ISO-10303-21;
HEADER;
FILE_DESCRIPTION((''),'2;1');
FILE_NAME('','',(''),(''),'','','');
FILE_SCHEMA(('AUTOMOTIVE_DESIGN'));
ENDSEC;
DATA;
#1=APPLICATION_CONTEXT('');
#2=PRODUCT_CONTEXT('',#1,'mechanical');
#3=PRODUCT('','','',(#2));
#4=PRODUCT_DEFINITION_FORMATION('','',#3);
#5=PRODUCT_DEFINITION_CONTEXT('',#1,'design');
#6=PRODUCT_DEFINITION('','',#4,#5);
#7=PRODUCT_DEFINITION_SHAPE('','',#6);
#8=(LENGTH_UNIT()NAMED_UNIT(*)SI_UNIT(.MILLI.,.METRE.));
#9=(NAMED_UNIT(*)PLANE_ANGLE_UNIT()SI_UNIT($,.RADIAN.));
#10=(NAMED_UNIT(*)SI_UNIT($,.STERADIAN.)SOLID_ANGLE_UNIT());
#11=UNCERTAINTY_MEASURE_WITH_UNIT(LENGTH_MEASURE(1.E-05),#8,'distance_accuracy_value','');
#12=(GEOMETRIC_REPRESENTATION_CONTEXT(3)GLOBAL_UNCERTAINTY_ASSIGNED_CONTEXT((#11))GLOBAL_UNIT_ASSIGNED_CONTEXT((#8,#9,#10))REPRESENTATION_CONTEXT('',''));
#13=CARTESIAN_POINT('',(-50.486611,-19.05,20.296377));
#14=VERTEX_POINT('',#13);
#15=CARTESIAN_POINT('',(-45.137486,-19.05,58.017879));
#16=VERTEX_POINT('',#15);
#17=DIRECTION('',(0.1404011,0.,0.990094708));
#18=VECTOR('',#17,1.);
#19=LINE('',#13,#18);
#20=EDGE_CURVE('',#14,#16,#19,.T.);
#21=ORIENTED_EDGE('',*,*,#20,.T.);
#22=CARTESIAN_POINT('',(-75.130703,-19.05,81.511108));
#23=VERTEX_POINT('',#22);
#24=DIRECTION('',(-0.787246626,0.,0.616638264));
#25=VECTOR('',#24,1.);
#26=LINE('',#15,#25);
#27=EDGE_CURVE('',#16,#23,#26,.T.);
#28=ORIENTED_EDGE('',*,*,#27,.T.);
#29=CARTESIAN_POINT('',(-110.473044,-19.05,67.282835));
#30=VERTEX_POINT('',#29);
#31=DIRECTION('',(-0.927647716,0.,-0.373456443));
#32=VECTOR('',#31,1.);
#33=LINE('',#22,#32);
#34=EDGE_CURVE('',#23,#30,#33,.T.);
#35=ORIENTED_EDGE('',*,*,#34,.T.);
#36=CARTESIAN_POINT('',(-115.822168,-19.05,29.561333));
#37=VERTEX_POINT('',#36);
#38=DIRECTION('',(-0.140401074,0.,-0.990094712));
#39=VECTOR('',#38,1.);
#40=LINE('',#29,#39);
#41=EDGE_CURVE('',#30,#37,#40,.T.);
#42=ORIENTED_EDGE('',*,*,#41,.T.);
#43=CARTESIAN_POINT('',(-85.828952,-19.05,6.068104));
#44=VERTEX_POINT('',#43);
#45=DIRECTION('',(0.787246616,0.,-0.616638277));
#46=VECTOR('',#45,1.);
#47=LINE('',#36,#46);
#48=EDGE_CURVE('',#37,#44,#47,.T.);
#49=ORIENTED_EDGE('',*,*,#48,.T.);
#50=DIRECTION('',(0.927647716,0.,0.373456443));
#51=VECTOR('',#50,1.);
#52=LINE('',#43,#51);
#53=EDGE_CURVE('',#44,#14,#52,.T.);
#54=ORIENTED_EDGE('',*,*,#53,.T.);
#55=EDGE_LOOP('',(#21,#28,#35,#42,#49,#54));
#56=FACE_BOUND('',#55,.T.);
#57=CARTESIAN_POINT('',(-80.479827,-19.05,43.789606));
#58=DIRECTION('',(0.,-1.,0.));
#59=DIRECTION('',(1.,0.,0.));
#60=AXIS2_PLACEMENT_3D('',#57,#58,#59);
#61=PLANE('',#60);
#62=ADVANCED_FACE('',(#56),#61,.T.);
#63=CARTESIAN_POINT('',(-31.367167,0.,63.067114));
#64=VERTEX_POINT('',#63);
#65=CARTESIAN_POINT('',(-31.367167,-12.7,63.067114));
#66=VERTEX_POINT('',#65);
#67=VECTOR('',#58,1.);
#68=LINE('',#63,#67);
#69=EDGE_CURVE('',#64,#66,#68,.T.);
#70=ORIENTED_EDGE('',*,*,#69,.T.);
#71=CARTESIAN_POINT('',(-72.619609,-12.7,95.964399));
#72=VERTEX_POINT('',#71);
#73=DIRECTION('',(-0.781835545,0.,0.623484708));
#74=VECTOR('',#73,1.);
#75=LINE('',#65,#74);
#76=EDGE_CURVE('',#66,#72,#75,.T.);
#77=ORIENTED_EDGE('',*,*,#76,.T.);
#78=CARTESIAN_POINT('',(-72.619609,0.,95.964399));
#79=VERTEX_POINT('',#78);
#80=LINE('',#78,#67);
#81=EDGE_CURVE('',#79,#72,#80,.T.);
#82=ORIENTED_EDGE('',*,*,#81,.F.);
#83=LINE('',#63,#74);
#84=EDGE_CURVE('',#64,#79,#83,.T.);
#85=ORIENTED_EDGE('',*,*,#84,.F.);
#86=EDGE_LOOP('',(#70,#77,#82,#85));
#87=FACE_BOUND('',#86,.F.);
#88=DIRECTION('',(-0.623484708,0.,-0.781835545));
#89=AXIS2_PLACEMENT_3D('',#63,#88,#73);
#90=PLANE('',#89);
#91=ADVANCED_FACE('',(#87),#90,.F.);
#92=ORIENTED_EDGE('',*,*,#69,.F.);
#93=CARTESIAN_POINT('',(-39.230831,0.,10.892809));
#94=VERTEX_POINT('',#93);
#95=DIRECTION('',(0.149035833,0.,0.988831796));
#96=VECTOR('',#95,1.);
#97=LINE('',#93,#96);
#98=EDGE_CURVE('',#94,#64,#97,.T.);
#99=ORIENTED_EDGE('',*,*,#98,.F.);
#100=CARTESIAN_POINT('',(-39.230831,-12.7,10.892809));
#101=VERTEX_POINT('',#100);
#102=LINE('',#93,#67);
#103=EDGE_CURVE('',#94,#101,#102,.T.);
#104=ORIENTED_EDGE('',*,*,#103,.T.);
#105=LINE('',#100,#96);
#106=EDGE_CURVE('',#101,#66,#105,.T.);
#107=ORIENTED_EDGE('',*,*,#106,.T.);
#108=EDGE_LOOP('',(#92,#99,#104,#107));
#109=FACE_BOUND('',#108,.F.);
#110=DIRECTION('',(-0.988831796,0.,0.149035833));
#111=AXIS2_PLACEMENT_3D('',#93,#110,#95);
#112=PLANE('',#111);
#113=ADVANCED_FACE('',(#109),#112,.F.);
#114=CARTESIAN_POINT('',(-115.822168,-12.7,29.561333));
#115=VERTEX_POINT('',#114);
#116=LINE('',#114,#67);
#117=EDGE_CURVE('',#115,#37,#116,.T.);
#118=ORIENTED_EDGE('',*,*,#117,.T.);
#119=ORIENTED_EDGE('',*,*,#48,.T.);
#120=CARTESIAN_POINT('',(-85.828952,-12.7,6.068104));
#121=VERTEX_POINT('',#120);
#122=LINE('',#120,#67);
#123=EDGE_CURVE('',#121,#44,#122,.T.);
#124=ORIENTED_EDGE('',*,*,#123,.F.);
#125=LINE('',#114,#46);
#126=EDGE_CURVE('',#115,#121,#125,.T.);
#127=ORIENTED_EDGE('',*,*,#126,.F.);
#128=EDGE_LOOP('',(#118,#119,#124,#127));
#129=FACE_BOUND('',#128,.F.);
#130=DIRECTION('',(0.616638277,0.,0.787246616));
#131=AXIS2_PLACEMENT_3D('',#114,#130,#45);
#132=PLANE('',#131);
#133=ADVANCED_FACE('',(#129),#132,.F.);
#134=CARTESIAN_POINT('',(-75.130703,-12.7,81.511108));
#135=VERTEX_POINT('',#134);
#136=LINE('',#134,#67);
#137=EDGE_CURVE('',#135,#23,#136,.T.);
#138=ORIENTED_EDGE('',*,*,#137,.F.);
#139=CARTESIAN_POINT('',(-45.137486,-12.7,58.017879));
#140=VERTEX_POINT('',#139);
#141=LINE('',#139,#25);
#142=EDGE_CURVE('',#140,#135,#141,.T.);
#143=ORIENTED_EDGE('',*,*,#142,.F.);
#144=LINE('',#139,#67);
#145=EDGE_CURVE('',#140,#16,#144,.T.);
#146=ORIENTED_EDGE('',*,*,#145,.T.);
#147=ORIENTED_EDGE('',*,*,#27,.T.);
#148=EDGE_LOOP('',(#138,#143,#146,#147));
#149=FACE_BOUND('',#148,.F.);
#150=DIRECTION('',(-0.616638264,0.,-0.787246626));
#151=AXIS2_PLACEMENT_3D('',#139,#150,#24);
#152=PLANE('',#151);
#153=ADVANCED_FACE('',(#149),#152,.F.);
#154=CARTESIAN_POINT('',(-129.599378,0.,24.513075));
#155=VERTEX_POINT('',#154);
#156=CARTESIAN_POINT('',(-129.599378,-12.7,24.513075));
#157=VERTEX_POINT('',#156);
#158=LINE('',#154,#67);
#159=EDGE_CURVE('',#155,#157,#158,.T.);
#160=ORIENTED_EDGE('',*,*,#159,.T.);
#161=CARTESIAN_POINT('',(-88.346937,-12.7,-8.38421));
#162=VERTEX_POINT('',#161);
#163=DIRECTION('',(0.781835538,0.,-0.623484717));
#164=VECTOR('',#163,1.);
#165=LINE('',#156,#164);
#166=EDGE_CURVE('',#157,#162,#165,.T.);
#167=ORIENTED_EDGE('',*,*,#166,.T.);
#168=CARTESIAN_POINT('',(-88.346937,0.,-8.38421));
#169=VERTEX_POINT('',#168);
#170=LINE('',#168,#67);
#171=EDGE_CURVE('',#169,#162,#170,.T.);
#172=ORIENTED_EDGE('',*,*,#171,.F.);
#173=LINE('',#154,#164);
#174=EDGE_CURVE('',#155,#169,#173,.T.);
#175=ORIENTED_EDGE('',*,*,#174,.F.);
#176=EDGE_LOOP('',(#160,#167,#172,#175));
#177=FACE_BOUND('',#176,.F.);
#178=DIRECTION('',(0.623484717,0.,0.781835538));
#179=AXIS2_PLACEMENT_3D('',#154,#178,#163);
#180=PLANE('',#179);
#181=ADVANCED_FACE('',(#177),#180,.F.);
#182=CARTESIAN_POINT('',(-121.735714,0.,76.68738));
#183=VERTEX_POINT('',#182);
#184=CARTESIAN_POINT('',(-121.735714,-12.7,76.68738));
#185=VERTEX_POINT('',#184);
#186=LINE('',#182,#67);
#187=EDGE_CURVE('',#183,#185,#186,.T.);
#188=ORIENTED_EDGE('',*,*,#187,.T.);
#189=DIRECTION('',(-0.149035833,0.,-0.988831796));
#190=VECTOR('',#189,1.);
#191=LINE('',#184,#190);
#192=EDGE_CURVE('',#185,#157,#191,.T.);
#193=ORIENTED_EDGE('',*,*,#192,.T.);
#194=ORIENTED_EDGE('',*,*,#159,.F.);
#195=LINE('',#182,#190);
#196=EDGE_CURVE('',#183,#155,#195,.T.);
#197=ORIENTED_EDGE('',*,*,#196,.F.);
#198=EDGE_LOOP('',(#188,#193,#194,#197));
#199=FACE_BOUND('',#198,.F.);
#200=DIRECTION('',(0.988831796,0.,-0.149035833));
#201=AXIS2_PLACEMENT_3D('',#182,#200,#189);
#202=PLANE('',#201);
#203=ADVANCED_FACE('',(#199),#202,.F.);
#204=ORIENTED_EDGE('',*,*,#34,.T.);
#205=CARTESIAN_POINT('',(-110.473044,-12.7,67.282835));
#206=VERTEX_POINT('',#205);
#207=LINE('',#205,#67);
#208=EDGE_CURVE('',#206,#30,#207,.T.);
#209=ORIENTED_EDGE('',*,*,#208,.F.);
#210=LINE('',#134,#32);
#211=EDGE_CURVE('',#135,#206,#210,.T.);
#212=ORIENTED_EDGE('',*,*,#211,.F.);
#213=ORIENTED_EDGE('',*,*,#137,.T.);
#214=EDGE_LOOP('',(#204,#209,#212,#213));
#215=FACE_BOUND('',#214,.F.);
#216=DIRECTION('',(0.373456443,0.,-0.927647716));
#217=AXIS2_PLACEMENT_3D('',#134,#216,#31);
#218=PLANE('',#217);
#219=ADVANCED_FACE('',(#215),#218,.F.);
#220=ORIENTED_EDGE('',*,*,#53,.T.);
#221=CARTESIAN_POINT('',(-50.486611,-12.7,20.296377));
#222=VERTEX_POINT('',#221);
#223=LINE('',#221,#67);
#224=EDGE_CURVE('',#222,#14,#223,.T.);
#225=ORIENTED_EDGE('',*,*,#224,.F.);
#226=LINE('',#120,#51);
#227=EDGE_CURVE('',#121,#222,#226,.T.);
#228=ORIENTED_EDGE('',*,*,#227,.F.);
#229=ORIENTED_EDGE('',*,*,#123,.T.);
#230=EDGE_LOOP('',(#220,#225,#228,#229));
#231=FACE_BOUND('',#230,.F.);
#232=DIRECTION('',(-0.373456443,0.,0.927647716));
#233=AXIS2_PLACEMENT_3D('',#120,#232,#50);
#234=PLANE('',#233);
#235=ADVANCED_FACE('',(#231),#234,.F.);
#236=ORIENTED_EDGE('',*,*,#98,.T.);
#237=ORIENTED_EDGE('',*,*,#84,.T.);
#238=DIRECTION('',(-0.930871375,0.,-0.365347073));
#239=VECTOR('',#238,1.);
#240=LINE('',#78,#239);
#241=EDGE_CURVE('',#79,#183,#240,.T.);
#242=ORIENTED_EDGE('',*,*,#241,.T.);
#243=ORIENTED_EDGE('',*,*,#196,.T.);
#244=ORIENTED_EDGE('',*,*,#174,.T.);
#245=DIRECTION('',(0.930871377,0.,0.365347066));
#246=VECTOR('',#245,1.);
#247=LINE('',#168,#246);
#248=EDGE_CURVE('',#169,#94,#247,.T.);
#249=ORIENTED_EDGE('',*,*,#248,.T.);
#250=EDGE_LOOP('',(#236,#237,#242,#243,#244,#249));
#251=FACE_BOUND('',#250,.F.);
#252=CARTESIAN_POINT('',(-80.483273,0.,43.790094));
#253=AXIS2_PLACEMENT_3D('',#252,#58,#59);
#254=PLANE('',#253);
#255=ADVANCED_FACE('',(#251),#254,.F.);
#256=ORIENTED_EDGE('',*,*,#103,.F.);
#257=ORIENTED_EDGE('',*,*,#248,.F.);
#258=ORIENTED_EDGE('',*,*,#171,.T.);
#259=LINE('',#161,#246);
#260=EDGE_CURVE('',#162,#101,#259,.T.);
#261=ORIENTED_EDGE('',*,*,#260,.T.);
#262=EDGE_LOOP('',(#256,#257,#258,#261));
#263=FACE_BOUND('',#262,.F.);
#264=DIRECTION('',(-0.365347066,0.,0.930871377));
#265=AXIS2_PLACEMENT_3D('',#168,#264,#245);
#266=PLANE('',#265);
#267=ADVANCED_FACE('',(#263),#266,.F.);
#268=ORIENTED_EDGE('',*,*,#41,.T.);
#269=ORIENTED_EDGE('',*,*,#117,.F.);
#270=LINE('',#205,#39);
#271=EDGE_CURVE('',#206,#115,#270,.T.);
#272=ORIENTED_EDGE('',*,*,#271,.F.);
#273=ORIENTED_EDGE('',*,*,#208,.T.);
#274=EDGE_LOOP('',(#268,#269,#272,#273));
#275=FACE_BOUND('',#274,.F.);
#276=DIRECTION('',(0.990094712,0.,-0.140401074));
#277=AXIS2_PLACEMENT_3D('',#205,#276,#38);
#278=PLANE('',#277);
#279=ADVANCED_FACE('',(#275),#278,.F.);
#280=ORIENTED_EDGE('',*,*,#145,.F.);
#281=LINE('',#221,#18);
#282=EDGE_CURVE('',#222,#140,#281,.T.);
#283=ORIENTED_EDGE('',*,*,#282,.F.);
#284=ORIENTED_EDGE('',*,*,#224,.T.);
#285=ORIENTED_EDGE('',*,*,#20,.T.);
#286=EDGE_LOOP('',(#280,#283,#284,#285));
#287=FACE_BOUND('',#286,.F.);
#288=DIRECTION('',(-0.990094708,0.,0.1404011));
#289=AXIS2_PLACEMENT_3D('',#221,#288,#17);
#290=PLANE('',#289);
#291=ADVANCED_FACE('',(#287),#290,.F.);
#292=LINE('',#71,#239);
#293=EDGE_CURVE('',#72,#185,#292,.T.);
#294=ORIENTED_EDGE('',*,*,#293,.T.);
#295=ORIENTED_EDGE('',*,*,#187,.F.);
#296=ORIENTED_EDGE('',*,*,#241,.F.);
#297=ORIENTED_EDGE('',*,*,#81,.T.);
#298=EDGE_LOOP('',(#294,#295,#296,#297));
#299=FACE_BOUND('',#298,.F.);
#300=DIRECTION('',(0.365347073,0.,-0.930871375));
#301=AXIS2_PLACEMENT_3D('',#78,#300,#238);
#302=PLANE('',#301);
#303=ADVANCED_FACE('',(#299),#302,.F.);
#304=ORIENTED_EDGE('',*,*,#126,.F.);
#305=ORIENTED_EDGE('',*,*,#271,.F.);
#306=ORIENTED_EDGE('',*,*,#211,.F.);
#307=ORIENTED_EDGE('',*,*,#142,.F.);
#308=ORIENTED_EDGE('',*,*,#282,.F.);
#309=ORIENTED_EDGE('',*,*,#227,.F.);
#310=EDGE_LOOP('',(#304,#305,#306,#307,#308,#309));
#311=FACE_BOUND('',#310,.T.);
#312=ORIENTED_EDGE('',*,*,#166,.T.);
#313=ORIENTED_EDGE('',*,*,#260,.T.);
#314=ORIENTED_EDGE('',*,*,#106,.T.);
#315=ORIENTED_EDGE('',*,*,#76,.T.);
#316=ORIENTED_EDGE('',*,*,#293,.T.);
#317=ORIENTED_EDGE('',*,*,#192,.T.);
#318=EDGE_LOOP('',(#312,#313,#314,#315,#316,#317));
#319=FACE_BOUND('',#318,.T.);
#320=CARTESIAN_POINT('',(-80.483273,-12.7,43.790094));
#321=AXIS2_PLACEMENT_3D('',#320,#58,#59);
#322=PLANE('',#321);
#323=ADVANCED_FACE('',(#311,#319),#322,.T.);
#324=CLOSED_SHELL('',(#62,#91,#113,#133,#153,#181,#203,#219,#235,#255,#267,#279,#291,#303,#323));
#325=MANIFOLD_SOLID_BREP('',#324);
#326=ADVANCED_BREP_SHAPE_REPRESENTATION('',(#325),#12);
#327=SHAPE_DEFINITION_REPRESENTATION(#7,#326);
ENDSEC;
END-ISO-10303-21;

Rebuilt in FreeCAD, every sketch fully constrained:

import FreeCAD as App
import Part
import Sketcher

V = App.Vector
Q = App.Units.Quantity

doc = App.newDocument("Part")
body = doc.addObject("PartDesign::Body", "Body")

# Sketch on XZ plane
sketch1 = body.newObject("Sketcher::SketchObject", "Sketch")
sketch1.AttachmentSupport = (doc.getObject("XZ_Plane"), [""])
sketch1.MapMode = "FlatFace"
sketch1.addGeometry([
    Part.LineSegment(V(-39.230831, 10.892809, 0), V(-31.367167, 63.067114, 0)),  # 0
    Part.LineSegment(V(-31.367167, 63.067114, 0), V(-72.619609, 95.964399, 0)),  # 1
    Part.LineSegment(V(-72.619609, 95.964399, 0), V(-121.735714, 76.68738, 0)),  # 2
    Part.LineSegment(V(-121.735714, 76.68738, 0), V(-129.599378, 24.513075, 0)),  # 3
    Part.LineSegment(V(-129.599378, 24.513075, 0), V(-88.346937, -8.38421, 0)),  # 4
    Part.LineSegment(V(-88.346937, -8.38421, 0), V(-39.230831, 10.892809, 0)),  # 5
], False)
sketch1.addConstraint([
    Sketcher.Constraint("Coincident", 0, 2, 1, 1),
    Sketcher.Constraint("Coincident", 1, 2, 2, 1),
    Sketcher.Constraint("Coincident", 2, 2, 3, 1),
    Sketcher.Constraint("Coincident", 3, 2, 4, 1),
    Sketcher.Constraint("Coincident", 4, 2, 5, 1),
    Sketcher.Constraint("Coincident", 5, 2, 0, 1),
    Sketcher.Constraint("Parallel", 0, 3),
    Sketcher.Constraint("Parallel", 1, 4),
    Sketcher.Constraint("Parallel", 2, 5),
    Sketcher.Constraint("Equal", 0, 1),
    Sketcher.Constraint("Equal", 1, 2),
    Sketcher.Constraint("Equal", 2, 3),
    Sketcher.Constraint("DistanceY", -1, 1, 1, 2, 95.964399),
    Sketcher.Constraint("Distance", 0, 52.763579),
    Sketcher.Constraint("DistanceX", 1, 2, -1, 1, 72.619609),
    Sketcher.Constraint("DistanceY", -1, 1, 2, 2, 76.68738),
    Sketcher.Constraint("DistanceX", 3, 2, -1, 1, 129.599378),
    Sketcher.Constraint("DistanceY", 4, 2, -1, 1, 8.38421),
])
pad1 = body.newObject("PartDesign::Pad", "Pad")
pad1.Profile = sketch1
pad1.Length = Q("0.5 in")

# Sketch on XZ plane
sketch2 = body.newObject("Sketcher::SketchObject", "Sketch001")
sketch2.AttachmentSupport = (doc.getObject("XZ_Plane"), [""])
sketch2.MapMode = "FlatFace"
sketch2.AttachmentOffset = App.Placement(V(0, 0, 0.5 * 25.4), App.Rotation())
sketch2.addGeometry([
    Part.LineSegment(V(-85.828952, 6.068104, 0), V(-50.486611, 20.296377, 0)),  # 0
    Part.LineSegment(V(-50.486611, 20.296377, 0), V(-45.137486, 58.017879, 0)),  # 1
    Part.LineSegment(V(-45.137486, 58.017879, 0), V(-75.130703, 81.511108, 0)),  # 2
    Part.LineSegment(V(-75.130703, 81.511108, 0), V(-110.473044, 67.282835, 0)),  # 3
    Part.LineSegment(V(-110.473044, 67.282835, 0), V(-115.822168, 29.561333, 0)),  # 4
    Part.LineSegment(V(-115.822168, 29.561333, 0), V(-85.828952, 6.068104, 0)),  # 5
], False)
sketch2.addConstraint([
    Sketcher.Constraint("Coincident", 0, 2, 1, 1),
    Sketcher.Constraint("Coincident", 1, 2, 2, 1),
    Sketcher.Constraint("Coincident", 2, 2, 3, 1),
    Sketcher.Constraint("Coincident", 3, 2, 4, 1),
    Sketcher.Constraint("Coincident", 4, 2, 5, 1),
    Sketcher.Constraint("Coincident", 5, 2, 0, 1),
    Sketcher.Constraint("Parallel", 0, 3),
    Sketcher.Constraint("Parallel", 1, 4),
    Sketcher.Constraint("Parallel", 2, 5),
    Sketcher.Constraint("Equal", 0, 1),
    Sketcher.Constraint("Equal", 1, 2),
    Sketcher.Constraint("Equal", 2, 3),
    Sketcher.Constraint("DistanceX", 0, 2, -1, 1, 50.486611),
    Sketcher.Constraint("DistanceY", -1, 1, 1, 2, 58.017879),
    Sketcher.Constraint("DistanceX", 4, 2, -1, 1, 115.822168),
    Sketcher.Constraint("DistanceX", 5, 2, -1, 1, 85.828952),
    Sketcher.Constraint("DistanceY", 1, 2, 2, 2, 23.493229),
    Sketcher.Constraint("DistanceX", 2, 2, 0, 2, 24.644092),
])
pad2 = body.newObject("PartDesign::Pad", "Pad001")
pad2.Profile = sketch2
pad2.Length = Q("0.25 in")

doc.recompute()
